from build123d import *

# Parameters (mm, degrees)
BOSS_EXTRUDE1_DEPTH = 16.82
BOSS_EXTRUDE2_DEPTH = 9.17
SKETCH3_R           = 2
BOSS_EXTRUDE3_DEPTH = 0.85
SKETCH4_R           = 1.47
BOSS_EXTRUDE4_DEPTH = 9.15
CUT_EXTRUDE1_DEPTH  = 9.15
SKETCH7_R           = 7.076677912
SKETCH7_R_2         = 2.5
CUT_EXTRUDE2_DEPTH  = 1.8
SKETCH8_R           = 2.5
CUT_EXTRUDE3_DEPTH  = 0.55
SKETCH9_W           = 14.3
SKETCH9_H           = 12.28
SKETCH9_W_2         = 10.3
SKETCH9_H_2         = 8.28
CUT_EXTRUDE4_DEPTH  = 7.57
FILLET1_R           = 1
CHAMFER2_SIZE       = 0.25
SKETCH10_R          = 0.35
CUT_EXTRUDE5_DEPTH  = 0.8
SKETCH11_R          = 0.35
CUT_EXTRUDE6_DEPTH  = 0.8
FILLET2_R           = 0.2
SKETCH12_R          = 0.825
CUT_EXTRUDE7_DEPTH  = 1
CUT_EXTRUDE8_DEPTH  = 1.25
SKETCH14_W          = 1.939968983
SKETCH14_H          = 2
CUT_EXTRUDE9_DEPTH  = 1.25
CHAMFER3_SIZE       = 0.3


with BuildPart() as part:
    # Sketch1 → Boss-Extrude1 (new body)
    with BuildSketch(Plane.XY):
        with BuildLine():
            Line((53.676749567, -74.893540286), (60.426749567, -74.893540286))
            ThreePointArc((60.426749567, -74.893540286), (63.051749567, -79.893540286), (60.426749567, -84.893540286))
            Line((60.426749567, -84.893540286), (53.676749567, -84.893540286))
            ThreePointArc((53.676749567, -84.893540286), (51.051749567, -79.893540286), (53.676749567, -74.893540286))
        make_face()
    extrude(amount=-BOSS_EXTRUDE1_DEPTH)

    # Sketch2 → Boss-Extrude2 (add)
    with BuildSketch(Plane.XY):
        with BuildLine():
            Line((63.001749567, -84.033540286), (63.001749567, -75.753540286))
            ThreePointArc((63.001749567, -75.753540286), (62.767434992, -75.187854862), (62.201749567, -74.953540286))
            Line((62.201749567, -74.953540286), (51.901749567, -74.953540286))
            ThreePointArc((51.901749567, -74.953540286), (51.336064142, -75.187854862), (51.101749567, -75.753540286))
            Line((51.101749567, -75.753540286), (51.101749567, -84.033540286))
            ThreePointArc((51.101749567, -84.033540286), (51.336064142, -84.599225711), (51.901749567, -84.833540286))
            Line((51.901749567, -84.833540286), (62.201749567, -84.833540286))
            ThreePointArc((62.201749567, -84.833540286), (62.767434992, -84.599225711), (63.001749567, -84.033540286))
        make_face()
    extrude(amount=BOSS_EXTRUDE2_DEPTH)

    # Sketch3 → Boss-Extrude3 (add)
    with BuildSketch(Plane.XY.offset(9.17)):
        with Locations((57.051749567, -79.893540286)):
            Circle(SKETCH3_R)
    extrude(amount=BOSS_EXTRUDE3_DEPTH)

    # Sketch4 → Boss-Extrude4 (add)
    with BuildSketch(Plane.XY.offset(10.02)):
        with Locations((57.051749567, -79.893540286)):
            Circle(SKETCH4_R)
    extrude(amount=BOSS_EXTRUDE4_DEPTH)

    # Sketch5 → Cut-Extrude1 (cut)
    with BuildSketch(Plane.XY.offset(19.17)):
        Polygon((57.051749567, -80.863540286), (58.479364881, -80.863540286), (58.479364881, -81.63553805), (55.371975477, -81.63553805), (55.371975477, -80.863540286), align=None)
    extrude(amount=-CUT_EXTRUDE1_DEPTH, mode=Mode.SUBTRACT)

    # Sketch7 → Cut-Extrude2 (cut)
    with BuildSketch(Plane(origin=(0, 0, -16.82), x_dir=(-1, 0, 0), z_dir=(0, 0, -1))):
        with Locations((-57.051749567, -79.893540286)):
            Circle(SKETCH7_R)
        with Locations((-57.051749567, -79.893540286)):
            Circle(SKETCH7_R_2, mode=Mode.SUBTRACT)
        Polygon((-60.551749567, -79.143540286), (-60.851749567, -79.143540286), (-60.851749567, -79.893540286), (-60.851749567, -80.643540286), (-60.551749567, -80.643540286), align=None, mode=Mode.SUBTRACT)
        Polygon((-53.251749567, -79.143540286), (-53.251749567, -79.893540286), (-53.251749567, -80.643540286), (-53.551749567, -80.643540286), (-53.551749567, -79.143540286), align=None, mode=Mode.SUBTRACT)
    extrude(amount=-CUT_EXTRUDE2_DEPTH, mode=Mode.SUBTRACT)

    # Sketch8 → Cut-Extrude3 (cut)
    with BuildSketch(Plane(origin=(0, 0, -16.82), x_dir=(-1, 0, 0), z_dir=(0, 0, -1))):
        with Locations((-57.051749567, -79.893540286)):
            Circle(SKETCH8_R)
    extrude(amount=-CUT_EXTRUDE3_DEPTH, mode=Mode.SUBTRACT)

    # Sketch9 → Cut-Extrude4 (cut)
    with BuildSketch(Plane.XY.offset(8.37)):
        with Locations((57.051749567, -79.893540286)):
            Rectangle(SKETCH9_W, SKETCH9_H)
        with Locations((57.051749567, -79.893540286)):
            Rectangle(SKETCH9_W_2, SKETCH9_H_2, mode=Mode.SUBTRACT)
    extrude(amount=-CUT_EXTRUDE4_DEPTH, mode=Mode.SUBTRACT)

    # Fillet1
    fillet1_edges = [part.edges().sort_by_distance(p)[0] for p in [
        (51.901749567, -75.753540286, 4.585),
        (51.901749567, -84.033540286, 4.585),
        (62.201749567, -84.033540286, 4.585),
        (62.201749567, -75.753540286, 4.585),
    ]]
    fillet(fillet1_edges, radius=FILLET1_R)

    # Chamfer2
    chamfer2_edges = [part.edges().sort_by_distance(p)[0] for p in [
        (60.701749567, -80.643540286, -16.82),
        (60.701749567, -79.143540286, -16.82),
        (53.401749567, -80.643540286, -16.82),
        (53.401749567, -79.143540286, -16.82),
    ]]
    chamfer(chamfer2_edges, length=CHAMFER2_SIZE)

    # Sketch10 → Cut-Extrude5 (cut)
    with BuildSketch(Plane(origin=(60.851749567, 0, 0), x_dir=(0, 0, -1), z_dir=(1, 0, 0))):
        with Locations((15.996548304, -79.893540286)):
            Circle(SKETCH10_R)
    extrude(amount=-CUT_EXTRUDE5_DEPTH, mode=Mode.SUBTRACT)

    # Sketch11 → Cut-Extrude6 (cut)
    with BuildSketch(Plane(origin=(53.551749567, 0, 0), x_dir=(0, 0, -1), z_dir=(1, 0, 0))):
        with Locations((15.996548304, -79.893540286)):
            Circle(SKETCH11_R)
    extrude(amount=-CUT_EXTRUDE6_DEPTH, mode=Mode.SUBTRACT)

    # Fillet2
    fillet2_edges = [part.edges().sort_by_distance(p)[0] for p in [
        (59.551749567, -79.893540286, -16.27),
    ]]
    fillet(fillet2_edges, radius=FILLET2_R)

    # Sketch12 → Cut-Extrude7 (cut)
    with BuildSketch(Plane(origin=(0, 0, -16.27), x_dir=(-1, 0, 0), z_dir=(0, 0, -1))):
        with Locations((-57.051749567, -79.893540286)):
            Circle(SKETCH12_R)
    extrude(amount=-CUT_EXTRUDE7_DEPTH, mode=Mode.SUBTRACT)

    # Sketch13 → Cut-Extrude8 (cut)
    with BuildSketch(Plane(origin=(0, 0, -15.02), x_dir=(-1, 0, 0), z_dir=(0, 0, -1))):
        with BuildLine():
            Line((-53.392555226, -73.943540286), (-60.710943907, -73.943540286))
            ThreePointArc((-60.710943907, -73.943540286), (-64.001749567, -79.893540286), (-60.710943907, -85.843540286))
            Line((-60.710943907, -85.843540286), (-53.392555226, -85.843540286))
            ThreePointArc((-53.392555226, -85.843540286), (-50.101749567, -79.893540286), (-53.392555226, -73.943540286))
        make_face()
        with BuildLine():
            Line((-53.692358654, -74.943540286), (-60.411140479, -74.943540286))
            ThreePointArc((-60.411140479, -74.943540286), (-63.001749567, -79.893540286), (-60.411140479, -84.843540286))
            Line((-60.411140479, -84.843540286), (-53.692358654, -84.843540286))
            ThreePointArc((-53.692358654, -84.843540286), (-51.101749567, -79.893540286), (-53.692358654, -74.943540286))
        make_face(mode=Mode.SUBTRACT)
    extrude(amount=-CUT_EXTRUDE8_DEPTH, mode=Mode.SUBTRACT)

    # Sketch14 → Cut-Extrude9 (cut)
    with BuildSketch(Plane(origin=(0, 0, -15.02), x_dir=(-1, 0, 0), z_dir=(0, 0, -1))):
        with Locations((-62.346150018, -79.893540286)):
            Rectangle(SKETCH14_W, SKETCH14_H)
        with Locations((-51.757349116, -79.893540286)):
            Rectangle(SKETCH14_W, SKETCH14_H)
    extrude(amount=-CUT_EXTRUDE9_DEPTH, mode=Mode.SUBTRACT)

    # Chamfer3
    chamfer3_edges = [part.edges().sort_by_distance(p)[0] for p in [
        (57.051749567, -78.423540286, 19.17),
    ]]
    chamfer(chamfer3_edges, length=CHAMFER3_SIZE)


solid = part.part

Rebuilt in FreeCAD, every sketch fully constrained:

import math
import FreeCAD as App
import Part
import Sketcher
from FreeCAD import Vector
Q = App.Units.Quantity


def edges_at(feature, points):
    """Names of the edges that pass closest to the given points."""
    edges = feature.Shape.Edges
    near = lambda p: min(range(len(edges)), key=lambda i: edges[i].distToShape(Part.Vertex(*p))[0])
    return sorted({f"Edge{near(p) + 1}" for p in points})


def add_polygon(sketch, points):
    """Adds a closed chain of lines whose ends are joined by coincident constraints."""
    first, n = sketch.GeometryCount, len(points)
    for a, b in zip(points, points[1:] + points[:1]):
        sketch.addGeometry(Part.LineSegment(App.Vector(*a, 0), App.Vector(*b, 0)), False)
    for i in range(n):
        sketch.addConstraint(Sketcher.Constraint("Coincident", first + i, 2, first + (i + 1) % n, 1))

doc = App.newDocument("Part")
body = doc.addObject("PartDesign::Body", "Body")

# Sketch on XY plane
sketch1 = body.newObject("Sketcher::SketchObject", "Sketch")
sketch1.AttachmentSupport = (doc.getObject("XY_Plane"), [""])
sketch1.MapMode = "FlatFace"
sketch1.addGeometry([
    Part.LineSegment(Vector(60, -75, 0), Vector(54, -75, 0)),
    Part.ArcOfCircle(Part.Circle(Vector(57, -80, 0), Vector(0, 0, 1), 6), math.radians(125), math.radians(235)),
    Part.LineSegment(Vector(54, -85, 0), Vector(60, -85, 0)),
    Part.ArcOfCircle(Part.Circle(Vector(57, -80, 0), Vector(0, 0, 1), 6), math.radians(-55), math.radians(55)),
], False)
sketch1.addConstraint([
    Sketcher.Constraint("Coincident", 0, 2, 1, 1),
    Sketcher.Constraint("Coincident", 1, 2, 2, 1),
    Sketcher.Constraint("Coincident", 2, 2, 3, 1),
    Sketcher.Constraint("Coincident", 3, 2, 0, 1),
    Sketcher.Constraint("Horizontal", 0),
    Sketcher.Constraint("Horizontal", 2),
    Sketcher.Constraint("Equal", 1, 3),
    Sketcher.Constraint("Horizontal", 1, 3, 3, 3),
    Sketcher.Constraint("Vertical", 0, 2, 1, 2),
    Sketcher.Constraint("DistanceY", 3, 3, 0, 2, Q("5 mm")),
    Sketcher.Constraint("DistanceX", 0, 2, 0, 1, Q("6.75 mm")),
    Sketcher.Constraint("Radius", 1, Q("6.074405 mm")),
    Sketcher.Constraint("DistanceY", 1, 3, -1, 1, Q("79.89354 mm")),
    Sketcher.Constraint("DistanceX", -1, 1, 0, 2, Q("53.67675 mm")),
])
pad1 = body.newObject("PartDesign::Pad", "Pad")
pad1.Profile = sketch1
pad1.Length = 16.82
pad1.Reversed = True

# Sketch on XY plane
sketch2 = body.newObject("Sketcher::SketchObject", "Sketch001")
sketch2.AttachmentSupport = (doc.getObject("XY_Plane"), [""])
sketch2.MapMode = "FlatFace"
sketch2.addGeometry([
    Part.LineSegment(Vector(63, -84, 0), Vector(63, -75.8, 0)),  # 0
    Part.ArcOfCircle(Part.Circle(Vector(62.2, -75.8, 0), Vector(0, 0, 1), 0.8), math.radians(0), math.radians(90)),  # 1
    Part.LineSegment(Vector(62.2, -75, 0), Vector(51.9, -75, 0)),  # 2
    Part.ArcOfCircle(Part.Circle(Vector(51.9, -75.8, 0), Vector(0, 0, 1), 0.8), math.radians(90), math.radians(180)),  # 3
    Part.LineSegment(Vector(51.1, -75.8, 0), Vector(51.1, -84, 0)),  # 4
    Part.ArcOfCircle(Part.Circle(Vector(51.9, -84, 0), Vector(0, 0, 1), 0.8), math.radians(180), math.radians(270)),  # 5
    Part.LineSegment(Vector(51.9, -84.8, 0), Vector(62.2, -84.8, 0)),  # 6
    Part.ArcOfCircle(Part.Circle(Vector(62.2, -84, 0), Vector(0, 0, 1), 0.8), math.radians(-90), math.radians(0)),  # 7
], False)
sketch2.addConstraint([
    Sketcher.Constraint("Tangent", 0, 2, 1, 1),
    Sketcher.Constraint("Tangent", 1, 2, 2, 1),
    Sketcher.Constraint("Tangent", 2, 2, 3, 1),
    Sketcher.Constraint("Tangent", 3, 2, 4, 1),
    Sketcher.Constraint("Tangent", 4, 2, 5, 1),
    Sketcher.Constraint("Tangent", 5, 2, 6, 1),
    Sketcher.Constraint("Tangent", 6, 2, 7, 1),
    Sketcher.Constraint("Tangent", 7, 2, 0, 1),
    Sketcher.Constraint("Vertical", 0),
    Sketcher.Constraint("Horizontal", 2),
    Sketcher.Constraint("Vertical", 4),
    Sketcher.Constraint("Horizontal", 6),
    Sketcher.Constraint("Equal", 1, 3),
    Sketcher.Constraint("Equal", 3, 5),
    Sketcher.Constraint("Equal", 5, 7),
    Sketcher.Constraint("Radius", 1, Q("0.8 mm")),
    Sketcher.Constraint("DistanceX", 2, 2, 2, 1, Q("10.3 mm")),
    Sketcher.Constraint("DistanceY", 0, 1, 0, 2, Q("8.28 mm")),
    Sketcher.Constraint("DistanceX", -1, 1, 1, 3, Q("62.20175 mm")),
    Sketcher.Constraint("DistanceY", 1, 3, -1, 1, Q("75.75354 mm")),
])
pad2 = body.newObject("PartDesign::Pad", "Pad001")
pad2.Profile = sketch2
pad2.Length = 9.17

# Sketch on XY plane
sketch3 = body.newObject("Sketcher::SketchObject", "Sketch002")
sketch3.AttachmentSupport = (doc.getObject("XY_Plane"), [""])
sketch3.MapMode = "FlatFace"
sketch3.AttachmentOffset = App.Placement(Vector(0, 0, 9.17), App.Rotation())
sketch3.addGeometry(Part.Circle(Vector(57.1, -79.9, 0), Vector(0, 0, 1), 2), False)
sketch3.addConstraint([
    Sketcher.Constraint("Diameter", 0, Q("4 mm")),
    Sketcher.Constraint("DistanceX", -1, 1, 0, 3, Q("57.05175 mm")),
    Sketcher.Constraint("DistanceY", 0, 3, -1, 1, Q("79.89354 mm")),
])
pad3 = body.newObject("PartDesign::Pad", "Pad002")
pad3.Profile = sketch3
pad3.Length = 0.85

# Sketch on XY plane
sketch4 = body.newObject("Sketcher::SketchObject", "Sketch003")
sketch4.AttachmentSupport = (doc.getObject("XY_Plane"), [""])
sketch4.MapMode = "FlatFace"
sketch4.AttachmentOffset = App.Placement(Vector(0, 0, 10.02), App.Rotation())
sketch4.addGeometry(Part.Circle(Vector(57.1, -79.9, 0), Vector(0, 0, 1), 1.5), False)
sketch4.addConstraint([
    Sketcher.Constraint("Diameter", 0, Q("2.94 mm")),
    Sketcher.Constraint("DistanceX", -1, 1, 0, 3, Q("57.05175 mm")),
    Sketcher.Constraint("DistanceY", 0, 3, -1, 1, Q("79.89354 mm")),
])
pad4 = body.newObject("PartDesign::Pad", "Pad003")
pad4.Profile = sketch4
pad4.Length = 9.15

# Sketch on XY plane
sketch5 = body.newObject("Sketcher::SketchObject", "Sketch004")
sketch5.AttachmentSupport = (doc.getObject("XY_Plane"), [""])
sketch5.MapMode = "FlatFace"
sketch5.AttachmentOffset = App.Placement(Vector(0, 0, 19.17), App.Rotation())
add_polygon(sketch5, [(58.5, -80.9), (55.4, -80.9), (55.4, -81.6), (58.5, -81.6)])  # lines 0-3
sketch5.addConstraint([
    Sketcher.Constraint("Horizontal", 0),
    Sketcher.Constraint("Vertical", 1),
    Sketcher.Constraint("Horizontal", 2),
    Sketcher.Constraint("Vertical", 3),
    Sketcher.Constraint("DistanceX", 0, 2, 0, 1, Q("3.107389 mm")),
    Sketcher.Constraint("DistanceY", 1, 2, 1, 1, Q("0.771998 mm")),
    Sketcher.Constraint("DistanceY", 0, 2, -1, 1, Q("80.86354 mm")),
    Sketcher.Constraint("DistanceX", -1, 1, 0, 2, Q("55.371975 mm")),
])
pocket1 = body.newObject("PartDesign::Pocket", "Pocket")
pocket1.Profile = sketch5
pocket1.Length = 9.15

# Sketch on XY plane
sketch6 = body.newObject("Sketcher::SketchObject", "Sketch005")
sketch6.AttachmentSupport = (doc.getObject("XY_Plane"), [""])
sketch6.MapMode = "FlatFace"
sketch6.AttachmentOffset = App.Placement(Vector(0, 0, -16.82), App.Rotation())
sketch6.addGeometry(Part.Circle(Vector(57.05, -79.89, 0), Vector(0, 0, 1), 7.08), False)  # 0
add_polygon(sketch6, [(60.85, -79.14), (60.55, -79.14), (60.55, -80.64), (60.85, -80.64)])  # lines 1-4
sketch6.addGeometry(Part.Circle(Vector(57.05, -79.89, 0), Vector(0, 0, 1), 2.5), False)  # 5
add_polygon(sketch6, [(53.55, -79.14), (53.25, -79.14), (53.25, -80.64), (53.55, -80.64)])  # lines 6-9
sketch6.addConstraint([
    Sketcher.Constraint("Horizontal", 1),
    Sketcher.Constraint("Vertical", 2),
    Sketcher.Constraint("Horizontal", 3),
    Sketcher.Constraint("Vertical", 4),
    Sketcher.Constraint("Horizontal", 6),
    Sketcher.Constraint("Vertical", 7),
    Sketcher.Constraint("Horizontal", 8),
    Sketcher.Constraint("Vertical", 9),
    Sketcher.Constraint("Coincident", 5, 3, 0, 3),
    Sketcher.Constraint("Horizontal", 4, 2, 6, 2),
    Sketcher.Constraint("Horizontal", 3, 2, 7, 2),
    Sketcher.Constraint("Equal", 3, 6),
    Sketcher.Constraint("Diameter", 5, Q("5 mm")),
    Sketcher.Constraint("DistanceX", 1, 2, 1, 1, Q("0.3 mm")),
    Sketcher.Constraint("DistanceY", 2, 2, 2, 1, Q("1.5 mm")),
    Sketcher.Constraint("DistanceX", 8, 2, 2, 2, Q("7 mm")),
    Sketcher.Constraint("DistanceX", 0, 3, 1, 2, Q("3.5 mm")),
    Sketcher.Constraint("DistanceY", 0, 3, 1, 2, Q("0.75 mm")),
    Sketcher.Constraint("Diameter", 0, Q("14.153356 mm")),
    Sketcher.Constraint("DistanceX", -1, 1, 0, 3, Q("57.05175 mm")),
    Sketcher.Constraint("DistanceY", 0, 3, -1, 1, Q("79.89354 mm")),
])
pocket2 = body.newObject("PartDesign::Pocket", "Pocket001")
pocket2.Profile = sketch6
pocket2.Length = 1.8
pocket2.Reversed = True

# Sketch on XY plane
sketch7 = body.newObject("Sketcher::SketchObject", "Sketch006")
sketch7.AttachmentSupport = (doc.getObject("XY_Plane"), [""])
sketch7.MapMode = "FlatFace"
sketch7.AttachmentOffset = App.Placement(Vector(0, 0, -16.82), App.Rotation())
sketch7.addGeometry(Part.Circle(Vector(57.1, -79.9, 0), Vector(0, 0, 1), 2.5), False)
sketch7.addConstraint([
    Sketcher.Constraint("Diameter", 0, Q("5 mm")),
    Sketcher.Constraint("DistanceX", -1, 1, 0, 3, Q("57.05175 mm")),
    Sketcher.Constraint("DistanceY", 0, 3, -1, 1, Q("79.89354 mm")),
])
pocket3 = body.newObject("PartDesign::Pocket", "Pocket002")
pocket3.Profile = sketch7
pocket3.Length = 0.55
pocket3.Reversed = True

# Sketch on XY plane
sketch8 = body.newObject("Sketcher::SketchObject", "Sketch007")
sketch8.AttachmentSupport = (doc.getObject("XY_Plane"), [""])
sketch8.MapMode = "FlatFace"
sketch8.AttachmentOffset = App.Placement(Vector(0, 0, 8.37), App.Rotation())
add_polygon(sketch8, [(50, -74), (50, -86), (64, -86), (64, -74)])  # lines 0-3
add_polygon(sketch8, [(62, -84), (52, -84), (52, -76), (62, -76)])  # lines 4-7
sketch8.addConstraint([
    Sketcher.Constraint("Vertical", 0),
    Sketcher.Constraint("Horizontal", 1),
    Sketcher.Constraint("Vertical", 2),
    Sketcher.Constraint("Horizontal", 3),
    Sketcher.Constraint("Horizontal", 4),
    Sketcher.Constraint("Vertical", 5),
    Sketcher.Constraint("Horizontal", 6),
    Sketcher.Constraint("Vertical", 7),
    Sketcher.Constraint("DistanceX", 1, 1, 1, 2, Q("14.3 mm")),
    Sketcher.Constraint("DistanceX", 4, 2, 4, 1, Q("10.3 mm")),
    Sketcher.Constraint("DistanceX", 0, 2, 4, 2, Q("2 mm")),
    Sketcher.Constraint("DistanceY", 0, 2, 4, 2, Q("2 mm")),
    Sketcher.Constraint("DistanceY", 5, 2, 3, 2, Q("2 mm")),
    Sketcher.Constraint("DistanceY", 0, 2, 0, 1, Q("12.28 mm")),
    Sketcher.Constraint("DistanceX", -1, 1, 0, 2, Q("49.90175 mm")),
    Sketcher.Constraint("DistanceY", 0, 2, -1, 1, Q("86.03354 mm")),
])
pocket4 = body.newObject("PartDesign::Pocket", "Pocket003")
pocket4.Profile = sketch8
pocket4.Length = 7.57
doc.recompute()

fillet = body.newObject("PartDesign::Fillet", "Fillet")
fillet.Base = (pocket4, edges_at(pocket4, [
    (51.902, -75.754, 4.585),
    (51.902, -84.034, 4.585),
    (62.202, -84.034, 4.585),
    (62.202, -75.754, 4.585),
]))
fillet.Radius = 1
doc.recompute()

chamfer = body.newObject("PartDesign::Chamfer", "Chamfer")
chamfer.Base = (fillet, edges_at(fillet, [
    (60.702, -80.644, -16.82),
    (60.702, -79.144, -16.82),
    (53.402, -80.644, -16.82),
    (53.402, -79.144, -16.82),
]))
chamfer.Size = 0.25

# Sketch on YZ plane
sketch9 = body.newObject("Sketcher::SketchObject", "Sketch008")
sketch9.AttachmentSupport = (doc.getObject("YZ_Plane"), [""])
sketch9.MapMode = "FlatFace"
sketch9.AttachmentOffset = App.Placement(Vector(0, 0, 60.85175), App.Rotation())
sketch9.addGeometry(Part.Circle(Vector(-79.89, -16, 0), Vector(0, 0, 1), 0.35), False)
sketch9.addConstraint([
    Sketcher.Constraint("Diameter", 0, Q("0.7 mm")),
    Sketcher.Constraint("DistanceX", 0, 3, -1, 1, Q("79.89354 mm")),
    Sketcher.Constraint("DistanceY", 0, 3, -1, 1, Q("15.996548 mm")),
])
pocket5 = body.newObject("PartDesign::Pocket", "Pocket004")
pocket5.Profile = sketch9
pocket5.Length = 0.8

# Sketch on YZ plane
sketch10 = body.newObject("Sketcher::SketchObject", "Sketch009")
sketch10.AttachmentSupport = (doc.getObject("YZ_Plane"), [""])
sketch10.MapMode = "FlatFace"
sketch10.AttachmentOffset = App.Placement(Vector(0, 0, 53.55175), App.Rotation())
sketch10.addGeometry(Part.Circle(Vector(-79.89, -16, 0), Vector(0, 0, 1), 0.35), False)
sketch10.addConstraint([
    Sketcher.Constraint("Diameter", 0, Q("0.7 mm")),
    Sketcher.Constraint("DistanceX", 0, 3, -1, 1, Q("79.89354 mm")),
    Sketcher.Constraint("DistanceY", 0, 3, -1, 1, Q("15.996548 mm")),
])
pocket6 = body.newObject("PartDesign::Pocket", "Pocket005")
pocket6.Profile = sketch10
pocket6.Length = 0.8
doc.recompute()

fillet2 = body.newObject("PartDesign::Fillet", "Fillet001")
fillet2.Base = (pocket6, edges_at(pocket6, [(59.552, -79.894, -16.27)]))
fillet2.Radius = 0.2

# Sketch on XY plane
sketch11 = body.newObject("Sketcher::SketchObject", "Sketch010")
sketch11.AttachmentSupport = (doc.getObject("XY_Plane"), [""])
sketch11.MapMode = "FlatFace"
sketch11.AttachmentOffset = App.Placement(Vector(0, 0, -16.27), App.Rotation())
sketch11.addGeometry(Part.Circle(Vector(57.1, -79.9, 0), Vector(0, 0, 1), 0.8), False)
sketch11.addConstraint([
    Sketcher.Constraint("Diameter", 0, Q("1.65 mm")),
    Sketcher.Constraint("DistanceX", -1, 1, 0, 3, Q("57.05175 mm")),
    Sketcher.Constraint("DistanceY", 0, 3, -1, 1, Q("79.89354 mm")),
])
pocket7 = body.newObject("PartDesign::Pocket", "Pocket006")
pocket7.Profile = sketch11
pocket7.Length = 1
pocket7.Reversed = True

# Sketch on XY plane
sketch12 = body.newObject("Sketcher::SketchObject", "Sketch011")
sketch12.AttachmentSupport = (doc.getObject("XY_Plane"), [""])
sketch12.MapMode = "FlatFace"
sketch12.AttachmentOffset = App.Placement(Vector(0, 0, -15.02), App.Rotation())
sketch12.addGeometry([
    Part.LineSegment(Vector(53, -74, 0), Vector(61, -74, 0)),  # 0
    Part.ArcOfCircle(Part.Circle(Vector(57, -80, 0), Vector(0, 0, 1), 7), math.radians(-58), math.radians(58)),  # 1
    Part.LineSegment(Vector(61, -86, 0), Vector(53, -86, 0)),  # 2
    Part.ArcOfCircle(Part.Circle(Vector(57, -80, 0), Vector(0, 0, 1), 7), math.radians(122), math.radians(238)),  # 3
    Part.LineSegment(Vector(60, -75, 0), Vector(54, -75, 0)),  # 4
    Part.ArcOfCircle(Part.Circle(Vector(57, -80, 0), Vector(0, 0, 1), 6), math.radians(125), math.radians(235)),  # 5
    Part.LineSegment(Vector(54, -85, 0), Vector(60, -85, 0)),  # 6
    Part.ArcOfCircle(Part.Circle(Vector(57, -80, 0), Vector(0, 0, 1), 6), math.radians(-55), math.radians(55)),  # 7
], False)
sketch12.addConstraint([
    Sketcher.Constraint("Coincident", 0, 2, 1, 2),
    Sketcher.Constraint("Coincident", 1, 1, 2, 1),
    Sketcher.Constraint("Coincident", 2, 2, 3, 2),
    Sketcher.Constraint("Coincident", 3, 1, 0, 1),
    Sketcher.Constraint("Coincident", 4, 2, 5, 1),
    Sketcher.Constraint("Coincident", 5, 2, 6, 1),
    Sketcher.Constraint("Coincident", 6, 2, 7, 1),
    Sketcher.Constraint("Coincident", 7, 2, 4, 1),
    Sketcher.Constraint("Horizontal", 0),
    Sketcher.Constraint("Horizontal", 2),
    Sketcher.Constraint("Horizontal", 4),
    Sketcher.Constraint("Horizontal", 6),
    Sketcher.Constraint("Coincident", 5, 3, 3, 3),
    Sketcher.Constraint("Coincident", 7, 3, 1, 3),
    Sketcher.Constraint("Equal", 1, 3),
    Sketcher.Constraint("Equal", 5, 7),
    Sketcher.Constraint("Horizontal", 1, 3, 3, 3),
    Sketcher.Constraint("Vertical", 0, 2, 1, 1),
    Sketcher.Constraint("Vertical", 4, 2, 5, 2),
    Sketcher.Constraint("DistanceY", 4, 2, 3, 1, Q("1 mm")),
    Sketcher.Constraint("DistanceY", 1, 1, 0, 2, Q("11.9 mm")),
    Sketcher.Constraint("Radius", 1, Q("7.024405 mm")),
    Sketcher.Constraint("Radius", 5, Q("6.024405 mm")),
    Sketcher.Constraint("DistanceX", 0, 1, 0, 2, Q("7.318389 mm")),
    Sketcher.Constraint("DistanceY", 1, 3, -1, 1, Q("79.89354 mm")),
    Sketcher.Constraint("DistanceX", -1, 1, 4, 2, Q("53.692359 mm")),
])
pocket8 = body.newObject("PartDesign::Pocket", "Pocket007")
pocket8.Profile = sketch12
pocket8.Length = 1.25
pocket8.Reversed = True

# Sketch on XY plane
sketch13 = body.newObject("Sketcher::SketchObject", "Sketch012")
sketch13.AttachmentSupport = (doc.getObject("XY_Plane"), [""])
sketch13.MapMode = "FlatFace"
sketch13.AttachmentOffset = App.Placement(Vector(0, 0, -15.02), App.Rotation())
add_polygon(sketch13, [(63.3, -78.9), (63.3, -80.9), (61.4, -80.9), (61.4, -78.9)])  # lines 0-3
add_polygon(sketch13, [(52.7, -78.9), (52.7, -80.9), (50.8, -80.9), (50.8, -78.9)])  # lines 4-7
sketch13.addConstraint([
    Sketcher.Constraint("Vertical", 0),
    Sketcher.Constraint("Horizontal", 1),
    Sketcher.Constraint("Vertical", 2),
    Sketcher.Constraint("Horizontal", 3),
    Sketcher.Constraint("Vertical", 4),
    Sketcher.Constraint("Horizontal", 5),
    Sketcher.Constraint("Vertical", 6),
    Sketcher.Constraint("Horizontal", 7),
    Sketcher.Constraint("Horizontal", 1, 2, 4, 2),
    Sketcher.Constraint("Horizontal", 3, 2, 6, 2),
    Sketcher.Constraint("Equal", 3, 5),
    Sketcher.Constraint("DistanceY", 0, 2, 0, 1, Q("2 mm")),
    Sketcher.Constraint("DistanceX", 1, 2, 1, 1, Q("1.939969 mm")),
    Sketcher.Constraint("DistanceX", 4, 2, 0, 2, Q("10.588801 mm")),
    Sketcher.Constraint("DistanceY", 0, 2, -1, 1, Q("80.89354 mm")),
    Sketcher.Constraint("DistanceX", -1, 1, 0, 2, Q("63.316135 mm")),
])
pocket9 = body.newObject("PartDesign::Pocket", "Pocket008")
pocket9.Profile = sketch13
pocket9.Length = 1.25
pocket9.Reversed = True
doc.recompute()

chamfer2 = body.newObject("PartDesign::Chamfer", "Chamfer001")
chamfer2.Base = (pocket9, edges_at(pocket9, [(57.052, -78.424, 19.17)]))
chamfer2.Size = 0.3

doc.recompute()
